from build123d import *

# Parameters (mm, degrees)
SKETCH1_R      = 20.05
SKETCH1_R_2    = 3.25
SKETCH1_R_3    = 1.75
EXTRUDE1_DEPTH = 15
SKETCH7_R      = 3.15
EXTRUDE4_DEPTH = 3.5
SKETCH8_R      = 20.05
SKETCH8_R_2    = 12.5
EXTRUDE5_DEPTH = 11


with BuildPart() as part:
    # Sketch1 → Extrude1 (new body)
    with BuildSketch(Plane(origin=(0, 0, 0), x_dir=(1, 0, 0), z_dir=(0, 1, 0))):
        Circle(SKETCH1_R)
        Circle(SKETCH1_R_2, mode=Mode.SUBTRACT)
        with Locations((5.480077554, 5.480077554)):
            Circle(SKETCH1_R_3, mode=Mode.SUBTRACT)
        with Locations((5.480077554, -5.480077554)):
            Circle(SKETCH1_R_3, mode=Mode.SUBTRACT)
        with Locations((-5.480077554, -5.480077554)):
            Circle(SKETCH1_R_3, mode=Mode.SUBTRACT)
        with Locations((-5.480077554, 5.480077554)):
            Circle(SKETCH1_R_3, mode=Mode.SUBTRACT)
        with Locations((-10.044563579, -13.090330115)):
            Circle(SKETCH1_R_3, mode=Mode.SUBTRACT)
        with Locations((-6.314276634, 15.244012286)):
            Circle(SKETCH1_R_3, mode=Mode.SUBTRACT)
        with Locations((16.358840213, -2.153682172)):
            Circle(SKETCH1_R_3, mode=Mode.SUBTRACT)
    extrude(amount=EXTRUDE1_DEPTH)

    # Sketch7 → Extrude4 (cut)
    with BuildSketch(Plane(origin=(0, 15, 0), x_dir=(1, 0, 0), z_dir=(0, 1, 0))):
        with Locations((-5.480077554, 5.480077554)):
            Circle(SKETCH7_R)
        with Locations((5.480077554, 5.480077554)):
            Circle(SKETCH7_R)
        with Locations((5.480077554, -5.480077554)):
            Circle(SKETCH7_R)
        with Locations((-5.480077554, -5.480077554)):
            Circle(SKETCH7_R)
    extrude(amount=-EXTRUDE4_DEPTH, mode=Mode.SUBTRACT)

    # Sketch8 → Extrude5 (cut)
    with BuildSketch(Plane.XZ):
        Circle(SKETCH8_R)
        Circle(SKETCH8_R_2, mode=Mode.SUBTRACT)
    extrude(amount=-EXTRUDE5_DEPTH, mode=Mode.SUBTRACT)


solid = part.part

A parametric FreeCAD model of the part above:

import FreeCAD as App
import Part
import Sketcher
Q = App.Units.Quantity

doc = App.newDocument("Part")
body = doc.addObject("PartDesign::Body", "Body")

sketch1 = body.newObject("Sketcher::SketchObject", "Sketch")
sketch1.AttachmentSupport = (doc.getObject("XZ_Plane"), [""])
sketch1.MapMode = "FlatFace"
sketch1.addGeometry([
    Part.Circle(App.Vector(0, 0, 0), App.Vector(0, 0, 1), 20.05),
    Part.Circle(App.Vector(-10.044564, 13.09033, 0), App.Vector(0, 0, 1), 1.75),
    Part.Circle(App.Vector(-5.480078, 5.480078, 0), App.Vector(0, 0, 1), 1.75),
    Part.Circle(App.Vector(0, 0, 0), App.Vector(0, 0, 1), 3.25),
    Part.Circle(App.Vector(5.480078, 5.480078, 0), App.Vector(0, 0, 1), 1.75),
    Part.Circle(App.Vector(16.35884, 2.153682, 0), App.Vector(0, 0, 1), 1.75),
    Part.Circle(App.Vector(-5.480078, -5.480078, 0), App.Vector(0, 0, 1), 1.75),
    Part.Circle(App.Vector(-6.314277, -15.244012, 0), App.Vector(0, 0, 1), 1.75),
    Part.Circle(App.Vector(5.480078, -5.480078, 0), App.Vector(0, 0, 1), 1.75),
], False)
sketch1.addConstraint([
    Sketcher.Constraint("Coincident", 0, 3, -1, 1),
    Sketcher.Constraint("Coincident", 3, 3, -1, 1),
    Sketcher.Constraint("Equal", 1, 2),
    Sketcher.Constraint("Equal", 2, 4),
    Sketcher.Constraint("Equal", 4, 5),
    Sketcher.Constraint("Equal", 5, 6),
    Sketcher.Constraint("Equal", 6, 7),
    Sketcher.Constraint("Equal", 7, 8),
    Sketcher.Constraint("Symmetric", 4, 3, 6, 3, -1, 1),
    Sketcher.Constraint("Symmetric", 2, 3, 8, 3, -1, 1),
    Sketcher.Constraint("Symmetric", 2, 3, 4, 3, -2),
    Sketcher.Constraint("Diameter", 0, Q("40.1 mm")),
    Sketcher.Constraint("Diameter", 1, Q("3.5 mm")),
    Sketcher.Constraint("Diameter", 3, Q("6.5 mm")),
    Sketcher.Constraint("DistanceX", 7, 3, 6, 3, Q("0.834199 mm")),
    Sketcher.Constraint("DistanceY", -1, 1, 1, 3, Q("13.09033 mm")),
    Sketcher.Constraint("DistanceX", -1, 1, 5, 3, Q("16.35884 mm")),
    Sketcher.Constraint("DistanceX", 1, 3, 4, 3, Q("15.524641 mm")),
    Sketcher.Constraint("DistanceY", 7, 3, 2, 3, Q("20.72409 mm")),
    Sketcher.Constraint("DistanceY", 8, 3, 5, 3, Q("7.63376 mm")),
    Sketcher.Constraint("DistanceX", 1, 3, -1, 1, Q("10.044564 mm")),
    Sketcher.Constraint("DistanceY", -1, 1, 2, 3, Q("5.480078 mm")),
])
pad1 = body.newObject("PartDesign::Pad", "Pad")
pad1.Profile = sketch1
pad1.Length = 15
pad1.Reversed = True

sketch2 = body.newObject("Sketcher::SketchObject", "Sketch001")
sketch2.AttachmentSupport = (doc.getObject("XZ_Plane"), [""])
sketch2.MapMode = "FlatFace"
sketch2.AttachmentOffset = App.Placement(App.Vector(0, 0, -15), App.Rotation())
sketch2.addGeometry([
    Part.Circle(App.Vector(-5.480078, -5.480078, 0), App.Vector(0, 0, 1), 3.15),
    Part.Circle(App.Vector(5.480078, -5.480078, 0), App.Vector(0, 0, 1), 3.15),
    Part.Circle(App.Vector(5.480078, 5.480078, 0), App.Vector(0, 0, 1), 3.15),
    Part.Circle(App.Vector(-5.480078, 5.480078, 0), App.Vector(0, 0, 1), 3.15),
], False)
sketch2.addConstraint([
    Sketcher.Constraint("Equal", 0, 1),
    Sketcher.Constraint("Equal", 1, 2),
    Sketcher.Constraint("Equal", 2, 3),
    Sketcher.Constraint("Symmetric", 0, 3, 2, 3, -1, 1),
    Sketcher.Constraint("Symmetric", 1, 3, 3, 3, -1, 1),
    Sketcher.Constraint("Symmetric", 0, 3, 1, 3, -2),
    Sketcher.Constraint("Diameter", 0, Q("6.3 mm")),
    Sketcher.Constraint("DistanceX", 0, 3, -1, 1, Q("5.480078 mm")),
    Sketcher.Constraint("DistanceY", 0, 3, -1, 1, Q("5.480078 mm")),
])
pocket1 = body.newObject("PartDesign::Pocket", "Pocket")
pocket1.Profile = sketch2
pocket1.Length = 3.5
pocket1.Reversed = True

sketch3 = body.newObject("Sketcher::SketchObject", "Sketch002")
sketch3.AttachmentSupport = (doc.getObject("XZ_Plane"), [""])
sketch3.MapMode = "FlatFace"
sketch3.addGeometry([
    Part.Circle(App.Vector(0, 0, 0), App.Vector(0, 0, 1), 20.05),
    Part.Circle(App.Vector(0, 0, 0), App.Vector(0, 0, 1), 12.5),
], False)
sketch3.addConstraint([
    Sketcher.Constraint("Coincident", 0, 3, -1, 1),
    Sketcher.Constraint("Coincident", 1, 3, -1, 1),
    Sketcher.Constraint("Diameter", 1, Q("25 mm")),
    Sketcher.Constraint("Diameter", 0, Q("40.1 mm")),
])
pocket2 = body.newObject("PartDesign::Pocket", "Pocket001")
pocket2.Profile = sketch3
pocket2.Length = 11

doc.recompute()
